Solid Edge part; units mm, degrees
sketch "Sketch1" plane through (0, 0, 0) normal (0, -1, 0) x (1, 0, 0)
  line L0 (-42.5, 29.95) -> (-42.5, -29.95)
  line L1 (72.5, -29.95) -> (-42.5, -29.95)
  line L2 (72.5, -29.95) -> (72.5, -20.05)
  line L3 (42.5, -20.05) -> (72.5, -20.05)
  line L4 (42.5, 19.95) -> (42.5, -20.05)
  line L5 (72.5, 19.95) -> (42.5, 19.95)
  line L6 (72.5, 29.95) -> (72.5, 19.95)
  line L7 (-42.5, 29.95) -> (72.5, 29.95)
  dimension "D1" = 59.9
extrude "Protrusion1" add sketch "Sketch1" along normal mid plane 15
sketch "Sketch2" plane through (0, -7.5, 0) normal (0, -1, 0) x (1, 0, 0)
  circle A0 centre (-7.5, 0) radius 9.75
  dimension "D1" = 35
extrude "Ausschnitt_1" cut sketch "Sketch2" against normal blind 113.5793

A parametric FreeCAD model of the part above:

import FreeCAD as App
import Part
import Sketcher
from FreeCAD import Vector
Q = App.Units.Quantity


def add_polygon(sketch, points):
    """Adds a closed chain of lines whose ends are joined by coincident constraints."""
    first, n = sketch.GeometryCount, len(points)
    for a, b in zip(points, points[1:] + points[:1]):
        sketch.addGeometry(Part.LineSegment(App.Vector(*a, 0), App.Vector(*b, 0)), False)
    for i in range(n):
        sketch.addConstraint(Sketcher.Constraint("Coincident", first + i, 2, first + (i + 1) % n, 1))

doc = App.newDocument("Part")
body = doc.addObject("PartDesign::Body", "Body")

# Sketch on XZ plane
sketch1 = body.newObject("Sketcher::SketchObject", "Sketch")
sketch1.AttachmentSupport = (doc.getObject("XZ_Plane"), [""])
sketch1.MapMode = "FlatFace"
add_polygon(sketch1, [(72, 30), (-42, 30), (-42, -30), (72, -30), (72, -20), (42, -20), (42, 20), (72, 20)])  # lines 0-7
sketch1.addConstraint(Sketcher.Constraint("Horizontal", 0))
sketch1.addConstraint(Sketcher.Constraint("Vertical", 1))
sketch1.addConstraint(Sketcher.Constraint("Horizontal", 2))
sketch1.addConstraint(Sketcher.Constraint("Vertical", 3))
sketch1.addConstraint(Sketcher.Constraint("Horizontal", 4))
sketch1.addConstraint(Sketcher.Constraint("Vertical", 5))
sketch1.addConstraint(Sketcher.Constraint("Horizontal", 6))
sketch1.addConstraint(Sketcher.Constraint("Vertical", 7))
sketch1.addConstraint(Sketcher.Constraint("Symmetric", 2, 2, 7, 2, -1))
sketch1.addConstraint(Sketcher.Constraint("DistanceX", 0, 2, -1, 1, Q("42.5 mm")))
sketch1.addConstraint(Sketcher.Constraint("DistanceX", -1, 1, 4, 2, Q("42.5 mm")))
sketch1.addConstraint(Sketcher.Constraint("DistanceX", 0, 2, 0, 1, Q("115 mm")))
sketch1.addConstraint(Sketcher.Constraint("DistanceY", 5, 1, 5, 2, Q("40 mm")))
sketch1.addConstraint(Sketcher.Constraint("DistanceY", 7, 1, 7, 2, Q("10 mm")))
sketch1.addConstraint(Sketcher.Constraint("DistanceY", 1, 2, 1, 1, Q("59.9 mm")))
pad1 = body.newObject("PartDesign::Pad", "Pad")
pad1.Profile = sketch1
pad1.Length = 15
pad1.Midplane = True

# Sketch on XZ plane
sketch2 = body.newObject("Sketcher::SketchObject", "Sketch001")
sketch2.AttachmentSupport = (doc.getObject("XZ_Plane"), [""])
sketch2.MapMode = "FlatFace"
sketch2.AttachmentOffset = App.Placement(Vector(0, 0, 7.5), App.Rotation())
sketch2.addGeometry(Part.Circle(Vector(-8, 0, 0), Vector(0, 0, 1), 10), False)
sketch2.addConstraint(Sketcher.Constraint("PointOnObject", 0, 3, -1))
sketch2.addConstraint(Sketcher.Constraint("Diameter", 0, Q("19.5 mm")))
sketch2.addConstraint(Sketcher.Constraint("DistanceX", 0, 3, -1, 1, Q("7.5 mm")))
pocket1 = body.newObject("PartDesign::Pocket", "Pocket")
pocket1.Profile = sketch2
pocket1.Length = 113.5793

doc.recompute()
